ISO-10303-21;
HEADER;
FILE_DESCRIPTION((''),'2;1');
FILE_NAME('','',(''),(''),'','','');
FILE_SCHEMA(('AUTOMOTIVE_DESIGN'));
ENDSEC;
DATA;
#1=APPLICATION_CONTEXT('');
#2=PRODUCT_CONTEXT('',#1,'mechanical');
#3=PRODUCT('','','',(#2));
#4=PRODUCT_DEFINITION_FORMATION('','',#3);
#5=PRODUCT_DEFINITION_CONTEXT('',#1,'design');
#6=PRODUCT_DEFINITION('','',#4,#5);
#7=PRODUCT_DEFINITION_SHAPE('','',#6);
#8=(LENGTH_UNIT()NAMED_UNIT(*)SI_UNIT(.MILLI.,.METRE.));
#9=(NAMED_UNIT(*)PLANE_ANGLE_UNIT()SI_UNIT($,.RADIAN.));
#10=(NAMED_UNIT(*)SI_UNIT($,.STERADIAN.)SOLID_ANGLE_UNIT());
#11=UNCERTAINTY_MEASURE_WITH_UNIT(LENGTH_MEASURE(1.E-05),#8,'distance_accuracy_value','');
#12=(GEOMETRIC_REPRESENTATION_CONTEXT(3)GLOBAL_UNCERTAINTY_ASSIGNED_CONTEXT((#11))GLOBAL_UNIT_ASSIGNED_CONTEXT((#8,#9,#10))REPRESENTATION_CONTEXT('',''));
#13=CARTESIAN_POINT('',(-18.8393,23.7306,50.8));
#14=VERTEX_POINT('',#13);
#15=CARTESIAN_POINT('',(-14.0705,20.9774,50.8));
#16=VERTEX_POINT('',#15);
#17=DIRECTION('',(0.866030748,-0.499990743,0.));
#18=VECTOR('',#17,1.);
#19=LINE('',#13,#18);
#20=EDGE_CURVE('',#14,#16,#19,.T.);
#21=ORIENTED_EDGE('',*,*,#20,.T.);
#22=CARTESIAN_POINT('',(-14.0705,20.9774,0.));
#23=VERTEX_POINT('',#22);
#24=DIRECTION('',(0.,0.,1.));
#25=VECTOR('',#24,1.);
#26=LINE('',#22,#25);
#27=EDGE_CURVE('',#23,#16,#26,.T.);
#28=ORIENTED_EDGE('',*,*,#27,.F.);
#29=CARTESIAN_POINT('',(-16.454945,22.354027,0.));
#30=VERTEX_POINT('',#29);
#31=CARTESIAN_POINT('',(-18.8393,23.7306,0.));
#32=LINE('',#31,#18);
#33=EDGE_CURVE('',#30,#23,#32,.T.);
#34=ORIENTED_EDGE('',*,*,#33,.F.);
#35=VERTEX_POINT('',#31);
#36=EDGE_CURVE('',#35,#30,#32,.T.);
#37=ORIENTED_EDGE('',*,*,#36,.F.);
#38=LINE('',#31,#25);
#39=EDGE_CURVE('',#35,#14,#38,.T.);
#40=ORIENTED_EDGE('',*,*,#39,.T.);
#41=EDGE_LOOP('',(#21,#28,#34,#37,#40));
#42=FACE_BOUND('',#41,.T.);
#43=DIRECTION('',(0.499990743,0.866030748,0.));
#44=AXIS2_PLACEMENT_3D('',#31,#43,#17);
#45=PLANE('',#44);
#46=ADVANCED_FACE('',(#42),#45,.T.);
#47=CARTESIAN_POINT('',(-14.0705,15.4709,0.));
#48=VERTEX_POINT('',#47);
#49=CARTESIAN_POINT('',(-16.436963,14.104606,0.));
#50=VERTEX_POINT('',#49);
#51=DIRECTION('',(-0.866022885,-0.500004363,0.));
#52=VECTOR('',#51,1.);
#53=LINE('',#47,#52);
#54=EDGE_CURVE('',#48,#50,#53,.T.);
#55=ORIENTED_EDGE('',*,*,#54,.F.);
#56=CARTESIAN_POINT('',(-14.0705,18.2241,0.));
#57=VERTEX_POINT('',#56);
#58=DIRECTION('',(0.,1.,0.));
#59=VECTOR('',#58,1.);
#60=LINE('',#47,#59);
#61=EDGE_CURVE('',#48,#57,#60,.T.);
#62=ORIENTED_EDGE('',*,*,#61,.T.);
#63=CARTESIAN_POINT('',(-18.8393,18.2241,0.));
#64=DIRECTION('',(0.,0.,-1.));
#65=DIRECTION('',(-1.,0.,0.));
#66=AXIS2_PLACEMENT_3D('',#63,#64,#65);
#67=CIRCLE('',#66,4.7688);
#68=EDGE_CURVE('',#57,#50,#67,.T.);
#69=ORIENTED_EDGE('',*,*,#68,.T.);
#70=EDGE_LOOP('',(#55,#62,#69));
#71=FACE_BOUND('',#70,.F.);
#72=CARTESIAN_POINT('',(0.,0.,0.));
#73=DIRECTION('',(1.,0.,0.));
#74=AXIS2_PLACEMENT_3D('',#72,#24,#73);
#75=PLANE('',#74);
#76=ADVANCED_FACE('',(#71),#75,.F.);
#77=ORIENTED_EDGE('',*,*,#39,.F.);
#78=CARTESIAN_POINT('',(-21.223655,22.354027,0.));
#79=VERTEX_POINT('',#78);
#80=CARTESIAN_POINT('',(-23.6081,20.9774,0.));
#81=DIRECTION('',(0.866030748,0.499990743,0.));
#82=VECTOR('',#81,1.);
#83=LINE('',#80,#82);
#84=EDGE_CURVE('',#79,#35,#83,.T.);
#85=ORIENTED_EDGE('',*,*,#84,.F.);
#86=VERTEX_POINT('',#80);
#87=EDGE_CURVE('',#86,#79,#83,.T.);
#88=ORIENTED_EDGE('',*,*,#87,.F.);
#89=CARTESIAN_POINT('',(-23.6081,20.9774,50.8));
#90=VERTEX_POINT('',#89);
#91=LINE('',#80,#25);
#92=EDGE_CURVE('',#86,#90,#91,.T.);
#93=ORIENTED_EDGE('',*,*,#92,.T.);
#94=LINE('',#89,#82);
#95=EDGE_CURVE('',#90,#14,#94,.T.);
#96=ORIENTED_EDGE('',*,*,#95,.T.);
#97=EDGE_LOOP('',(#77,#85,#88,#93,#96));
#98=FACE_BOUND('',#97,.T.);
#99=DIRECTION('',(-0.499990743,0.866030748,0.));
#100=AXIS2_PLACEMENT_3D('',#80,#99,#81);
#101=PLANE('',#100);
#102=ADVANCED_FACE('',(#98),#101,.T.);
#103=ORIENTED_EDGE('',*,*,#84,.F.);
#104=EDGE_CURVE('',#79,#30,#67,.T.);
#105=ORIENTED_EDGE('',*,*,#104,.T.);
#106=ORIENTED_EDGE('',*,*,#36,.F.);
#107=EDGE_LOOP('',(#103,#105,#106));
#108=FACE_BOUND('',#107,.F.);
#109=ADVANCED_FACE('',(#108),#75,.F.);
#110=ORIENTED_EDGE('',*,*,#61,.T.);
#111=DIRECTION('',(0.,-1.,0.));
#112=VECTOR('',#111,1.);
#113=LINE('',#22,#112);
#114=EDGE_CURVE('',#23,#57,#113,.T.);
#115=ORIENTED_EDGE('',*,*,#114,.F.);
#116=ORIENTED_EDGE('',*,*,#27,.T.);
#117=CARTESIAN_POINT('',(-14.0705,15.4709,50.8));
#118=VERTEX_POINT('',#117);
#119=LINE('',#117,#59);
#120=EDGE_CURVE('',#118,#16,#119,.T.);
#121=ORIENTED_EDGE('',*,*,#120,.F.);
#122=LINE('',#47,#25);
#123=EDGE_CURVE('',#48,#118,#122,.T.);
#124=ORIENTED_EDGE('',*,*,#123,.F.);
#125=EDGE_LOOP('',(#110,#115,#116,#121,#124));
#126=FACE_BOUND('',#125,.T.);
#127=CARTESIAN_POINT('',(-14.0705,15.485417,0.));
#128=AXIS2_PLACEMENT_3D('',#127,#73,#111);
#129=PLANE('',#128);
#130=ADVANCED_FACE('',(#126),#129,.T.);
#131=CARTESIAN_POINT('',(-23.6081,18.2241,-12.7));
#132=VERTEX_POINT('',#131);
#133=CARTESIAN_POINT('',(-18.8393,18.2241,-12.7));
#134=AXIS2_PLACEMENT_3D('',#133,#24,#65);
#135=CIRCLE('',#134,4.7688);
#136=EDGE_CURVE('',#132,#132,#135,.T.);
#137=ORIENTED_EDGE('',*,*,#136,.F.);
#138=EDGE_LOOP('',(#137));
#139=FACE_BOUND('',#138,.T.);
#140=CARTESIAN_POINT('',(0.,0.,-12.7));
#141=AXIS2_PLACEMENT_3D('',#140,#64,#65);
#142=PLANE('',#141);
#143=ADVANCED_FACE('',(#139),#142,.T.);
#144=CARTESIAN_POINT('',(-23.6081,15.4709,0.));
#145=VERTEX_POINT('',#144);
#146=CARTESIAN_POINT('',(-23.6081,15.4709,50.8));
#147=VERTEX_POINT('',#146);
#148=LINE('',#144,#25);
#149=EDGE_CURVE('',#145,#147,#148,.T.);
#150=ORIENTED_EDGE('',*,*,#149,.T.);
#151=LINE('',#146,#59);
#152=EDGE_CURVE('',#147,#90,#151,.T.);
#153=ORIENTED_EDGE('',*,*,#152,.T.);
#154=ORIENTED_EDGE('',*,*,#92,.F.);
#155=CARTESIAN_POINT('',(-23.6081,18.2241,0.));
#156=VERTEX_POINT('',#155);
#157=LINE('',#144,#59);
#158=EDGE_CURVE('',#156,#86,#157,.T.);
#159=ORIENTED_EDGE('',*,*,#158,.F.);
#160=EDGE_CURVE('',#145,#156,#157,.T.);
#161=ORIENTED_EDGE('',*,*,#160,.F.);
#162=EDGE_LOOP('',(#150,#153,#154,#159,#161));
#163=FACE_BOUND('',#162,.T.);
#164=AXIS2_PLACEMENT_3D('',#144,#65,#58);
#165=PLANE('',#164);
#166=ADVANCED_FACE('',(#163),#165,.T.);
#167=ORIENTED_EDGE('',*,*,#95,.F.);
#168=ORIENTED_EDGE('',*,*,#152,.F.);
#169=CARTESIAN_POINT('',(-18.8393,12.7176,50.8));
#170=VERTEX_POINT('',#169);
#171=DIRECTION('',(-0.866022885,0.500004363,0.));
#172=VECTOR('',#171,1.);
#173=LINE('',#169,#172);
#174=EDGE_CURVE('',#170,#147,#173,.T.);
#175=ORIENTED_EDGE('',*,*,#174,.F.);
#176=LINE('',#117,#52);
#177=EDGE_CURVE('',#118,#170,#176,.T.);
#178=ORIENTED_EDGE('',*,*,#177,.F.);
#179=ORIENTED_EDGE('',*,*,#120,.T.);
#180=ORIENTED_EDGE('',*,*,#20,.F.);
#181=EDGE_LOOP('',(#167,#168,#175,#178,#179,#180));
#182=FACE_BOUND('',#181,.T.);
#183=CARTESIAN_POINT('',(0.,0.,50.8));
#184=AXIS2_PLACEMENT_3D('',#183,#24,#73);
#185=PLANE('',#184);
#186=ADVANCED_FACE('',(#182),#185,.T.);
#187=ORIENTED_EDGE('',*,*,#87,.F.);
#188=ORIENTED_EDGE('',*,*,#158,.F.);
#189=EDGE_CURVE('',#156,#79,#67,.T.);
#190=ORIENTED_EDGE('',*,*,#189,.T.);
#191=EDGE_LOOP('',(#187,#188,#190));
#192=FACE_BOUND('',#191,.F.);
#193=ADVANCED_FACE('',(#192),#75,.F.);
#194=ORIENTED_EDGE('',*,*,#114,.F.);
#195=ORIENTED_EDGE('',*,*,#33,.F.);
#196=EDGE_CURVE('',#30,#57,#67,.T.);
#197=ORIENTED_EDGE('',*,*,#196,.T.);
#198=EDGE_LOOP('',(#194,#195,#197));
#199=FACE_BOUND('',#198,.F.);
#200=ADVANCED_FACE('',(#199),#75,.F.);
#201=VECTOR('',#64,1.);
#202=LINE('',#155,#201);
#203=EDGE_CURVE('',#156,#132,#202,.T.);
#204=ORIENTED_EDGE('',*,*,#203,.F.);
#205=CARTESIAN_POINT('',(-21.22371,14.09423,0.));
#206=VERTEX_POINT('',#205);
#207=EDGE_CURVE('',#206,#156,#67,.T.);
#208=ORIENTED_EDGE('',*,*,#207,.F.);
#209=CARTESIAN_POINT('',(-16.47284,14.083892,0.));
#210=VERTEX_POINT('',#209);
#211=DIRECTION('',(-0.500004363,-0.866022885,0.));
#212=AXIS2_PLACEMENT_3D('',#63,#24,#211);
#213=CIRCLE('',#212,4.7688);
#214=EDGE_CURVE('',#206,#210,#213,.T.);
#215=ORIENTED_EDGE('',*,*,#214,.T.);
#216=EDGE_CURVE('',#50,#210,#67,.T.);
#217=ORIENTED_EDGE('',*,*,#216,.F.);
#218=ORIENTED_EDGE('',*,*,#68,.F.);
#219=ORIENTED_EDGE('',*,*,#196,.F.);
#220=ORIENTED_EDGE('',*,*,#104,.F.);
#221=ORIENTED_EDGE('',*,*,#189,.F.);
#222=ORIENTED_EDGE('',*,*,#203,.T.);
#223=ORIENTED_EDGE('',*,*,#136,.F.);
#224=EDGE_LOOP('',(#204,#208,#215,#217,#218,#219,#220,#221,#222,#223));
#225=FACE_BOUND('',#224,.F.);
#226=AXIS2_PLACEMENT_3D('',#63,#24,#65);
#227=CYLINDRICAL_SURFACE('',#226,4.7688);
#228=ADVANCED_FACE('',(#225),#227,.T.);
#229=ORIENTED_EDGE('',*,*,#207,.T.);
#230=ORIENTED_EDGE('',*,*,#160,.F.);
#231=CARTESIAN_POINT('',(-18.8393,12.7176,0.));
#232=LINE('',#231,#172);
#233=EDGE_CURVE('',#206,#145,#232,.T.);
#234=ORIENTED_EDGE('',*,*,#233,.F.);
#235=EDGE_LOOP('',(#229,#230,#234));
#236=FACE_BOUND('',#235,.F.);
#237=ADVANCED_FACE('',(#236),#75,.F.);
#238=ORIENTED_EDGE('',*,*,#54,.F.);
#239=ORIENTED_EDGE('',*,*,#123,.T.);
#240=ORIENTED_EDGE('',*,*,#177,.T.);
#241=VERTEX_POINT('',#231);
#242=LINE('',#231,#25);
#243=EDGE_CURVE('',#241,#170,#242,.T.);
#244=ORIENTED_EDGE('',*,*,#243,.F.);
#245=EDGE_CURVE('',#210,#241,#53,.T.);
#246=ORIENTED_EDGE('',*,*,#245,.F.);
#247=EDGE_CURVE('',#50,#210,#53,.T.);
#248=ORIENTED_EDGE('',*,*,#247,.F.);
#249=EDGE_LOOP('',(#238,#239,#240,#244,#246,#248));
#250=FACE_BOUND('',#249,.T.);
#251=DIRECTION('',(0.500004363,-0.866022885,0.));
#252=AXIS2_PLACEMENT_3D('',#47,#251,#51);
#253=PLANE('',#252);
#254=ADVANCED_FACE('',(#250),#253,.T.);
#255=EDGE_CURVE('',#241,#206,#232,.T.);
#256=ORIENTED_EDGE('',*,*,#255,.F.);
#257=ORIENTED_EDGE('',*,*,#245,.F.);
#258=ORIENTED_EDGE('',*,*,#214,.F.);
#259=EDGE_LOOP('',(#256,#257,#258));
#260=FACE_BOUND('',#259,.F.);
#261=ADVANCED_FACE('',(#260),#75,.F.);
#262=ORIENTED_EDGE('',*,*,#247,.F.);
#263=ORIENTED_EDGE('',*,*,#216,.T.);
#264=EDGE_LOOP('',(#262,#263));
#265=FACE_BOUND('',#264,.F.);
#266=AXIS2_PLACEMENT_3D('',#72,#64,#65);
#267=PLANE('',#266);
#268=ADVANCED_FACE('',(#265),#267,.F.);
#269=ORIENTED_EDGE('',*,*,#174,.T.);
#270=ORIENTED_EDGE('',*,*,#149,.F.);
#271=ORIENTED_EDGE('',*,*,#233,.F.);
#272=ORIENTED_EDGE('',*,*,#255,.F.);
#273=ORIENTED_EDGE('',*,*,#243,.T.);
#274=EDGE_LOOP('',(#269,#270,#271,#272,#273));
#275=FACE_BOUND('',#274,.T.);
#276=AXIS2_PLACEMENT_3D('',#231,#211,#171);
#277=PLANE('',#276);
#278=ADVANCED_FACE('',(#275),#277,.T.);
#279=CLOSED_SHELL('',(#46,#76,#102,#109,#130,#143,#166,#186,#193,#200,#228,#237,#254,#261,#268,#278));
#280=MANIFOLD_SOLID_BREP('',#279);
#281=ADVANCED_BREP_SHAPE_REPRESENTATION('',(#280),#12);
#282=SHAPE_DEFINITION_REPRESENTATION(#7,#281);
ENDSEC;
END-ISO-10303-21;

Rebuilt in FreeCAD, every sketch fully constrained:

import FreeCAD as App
import Part
import Sketcher
Q = App.Units.Quantity

doc = App.newDocument("Part")
body = doc.addObject("PartDesign::Body", "Body")

# Sketch on XY plane
sketch1 = body.newObject("Sketcher::SketchObject", "Sketch")
sketch1.AttachmentSupport = (doc.getObject("XY_Plane"), [""])
sketch1.MapMode = "FlatFace"
sketch1.addGeometry([
    Part.LineSegment(App.Vector(-24, 15, 0), App.Vector(-19, 13, 0)),  # 0
    Part.LineSegment(App.Vector(-19, 13, 0), App.Vector(-14, 15, 0)),  # 1
    Part.LineSegment(App.Vector(-14, 15, 0), App.Vector(-14, 21, 0)),  # 2
    Part.LineSegment(App.Vector(-14, 21, 0), App.Vector(-19, 24, 0)),  # 3
    Part.LineSegment(App.Vector(-19, 24, 0), App.Vector(-24, 21, 0)),  # 4
    Part.LineSegment(App.Vector(-24, 21, 0), App.Vector(-24, 15, 0)),  # 5
], False)
sketch1.addConstraint([
    Sketcher.Constraint("Coincident", 0, 2, 1, 1),
    Sketcher.Constraint("Coincident", 1, 2, 2, 1),
    Sketcher.Constraint("Coincident", 2, 2, 3, 1),
    Sketcher.Constraint("Coincident", 3, 2, 4, 1),
    Sketcher.Constraint("Coincident", 4, 2, 5, 1),
    Sketcher.Constraint("Coincident", 5, 2, 0, 1),
    Sketcher.Constraint("Vertical", 2),
    Sketcher.Constraint("Vertical", 5),
    Sketcher.Constraint("Parallel", 0, 3),
    Sketcher.Constraint("Parallel", 1, 4),
    Sketcher.Constraint("Horizontal", 2, 2, 4, 2),
    Sketcher.Constraint("Horizontal", 1, 2, 5, 2),
    Sketcher.Constraint("Vertical", 0, 2, 3, 2),
    Sketcher.Constraint("Angle", 0, Q("-30.0003 deg")),
    Sketcher.Constraint("DistanceY", 2, 1, 2, 2, Q("0.2168 in")),
    Sketcher.Constraint("Distance", 0, Q("0.2168 in")),
    Sketcher.Constraint("DistanceX", 0, 2, -1, 1, Q("0.7417 in")),
    Sketcher.Constraint("DistanceY", -1, 1, 0, 2, Q("0.5007 in")),
])
pad1 = body.newObject("PartDesign::Pad", "Pad")
pad1.Profile = sketch1
pad1.Length = Q("2 in")

# Sketch on XY plane
sketch2 = body.newObject("Sketcher::SketchObject", "Sketch001")
sketch2.AttachmentSupport = (doc.getObject("XY_Plane"), [""])
sketch2.MapMode = "FlatFace"
sketch2.addGeometry(Part.Circle(App.Vector(-18.8, 18.2, 0), App.Vector(0, 0, 1), 4.8), False)
sketch2.addConstraint([
    Sketcher.Constraint("Diameter", 0, Q("0.3755 in")),
    Sketcher.Constraint("DistanceX", 0, 3, -1, 1, Q("0.7417 in")),
    Sketcher.Constraint("DistanceY", -1, 1, 0, 3, 18.224),
])
pad2 = body.newObject("PartDesign::Pad", "Pad001")
pad2.Profile = sketch2
pad2.Length = Q("0.5 in")
pad2.Reversed = True

doc.recompute()
